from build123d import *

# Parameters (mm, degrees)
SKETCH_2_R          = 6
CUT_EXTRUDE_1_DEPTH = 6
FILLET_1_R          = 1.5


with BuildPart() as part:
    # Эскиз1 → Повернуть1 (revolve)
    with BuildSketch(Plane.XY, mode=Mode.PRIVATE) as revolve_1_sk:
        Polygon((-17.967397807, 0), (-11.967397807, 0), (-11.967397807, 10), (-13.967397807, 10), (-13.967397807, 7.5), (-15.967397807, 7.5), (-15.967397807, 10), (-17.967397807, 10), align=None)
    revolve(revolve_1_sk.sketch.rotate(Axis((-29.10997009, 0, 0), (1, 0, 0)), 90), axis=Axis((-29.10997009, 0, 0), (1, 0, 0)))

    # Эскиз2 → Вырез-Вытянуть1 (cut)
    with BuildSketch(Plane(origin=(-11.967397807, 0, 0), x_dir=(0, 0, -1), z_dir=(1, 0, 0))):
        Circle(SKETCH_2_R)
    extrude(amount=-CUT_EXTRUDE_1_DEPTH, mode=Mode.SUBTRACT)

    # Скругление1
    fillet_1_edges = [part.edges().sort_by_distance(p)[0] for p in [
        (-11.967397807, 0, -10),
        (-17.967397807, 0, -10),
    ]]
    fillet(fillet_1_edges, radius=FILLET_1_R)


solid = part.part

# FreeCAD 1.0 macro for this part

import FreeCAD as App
import Part
import Sketcher

V = App.Vector
Q = App.Units.Quantity


def edges_at(feature, points):
    """Names of the edges that pass closest to the given points."""
    edges = feature.Shape.Edges
    near = lambda p: min(range(len(edges)), key=lambda i: edges[i].distToShape(Part.Vertex(*p))[0])
    return sorted({f"Edge{near(p) + 1}" for p in points})

doc = App.newDocument("Part")
body = doc.addObject("PartDesign::Body", "Body")

# Sketch on XY plane
sketch1 = doc.addObject("Sketcher::SketchObject", "Sketch")
body.addObject(sketch1)
sketch1.AttachmentSupport = (doc.XY_Plane, [""])
sketch1.MapMode = "FlatFace"
sketch1.addGeometry([
    Part.LineSegment(V(-18, 0, 0), V(-12, 0, 0)),  # 0
    Part.LineSegment(V(-12, 0, 0), V(-12, 10, 0)),  # 1
    Part.LineSegment(V(-12, 10, 0), V(-14, 10, 0)),  # 2
    Part.LineSegment(V(-14, 10, 0), V(-14, 7.5, 0)),  # 3
    Part.LineSegment(V(-14, 7.5, 0), V(-16, 7.5, 0)),  # 4
    Part.LineSegment(V(-16, 7.5, 0), V(-16, 10, 0)),  # 5
    Part.LineSegment(V(-16, 10, 0), V(-18, 10, 0)),  # 6
    Part.LineSegment(V(-18, 10, 0), V(-18, 0, 0)),  # 7
], False)
sketch1.addConstraint([
    Sketcher.Constraint("Coincident", 0, 2, 1, 1),
    Sketcher.Constraint("Coincident", 1, 2, 2, 1),
    Sketcher.Constraint("Coincident", 2, 2, 3, 1),
    Sketcher.Constraint("Coincident", 3, 2, 4, 1),
    Sketcher.Constraint("Coincident", 4, 2, 5, 1),
    Sketcher.Constraint("Coincident", 5, 2, 6, 1),
    Sketcher.Constraint("Coincident", 6, 2, 7, 1),
    Sketcher.Constraint("Coincident", 7, 2, 0, 1),
    Sketcher.Constraint("Horizontal", 0),
    Sketcher.Constraint("Vertical", 1),
    Sketcher.Constraint("Horizontal", 2),
    Sketcher.Constraint("Vertical", 3),
    Sketcher.Constraint("Horizontal", 4),
    Sketcher.Constraint("Vertical", 5),
    Sketcher.Constraint("Horizontal", 6),
    Sketcher.Constraint("Vertical", 7),
    Sketcher.Constraint("PointOnObject", 0, 2, -1),
    Sketcher.Constraint("Horizontal", 2, 2, 5, 2),
    Sketcher.Constraint("Equal", 2, 4),
    Sketcher.Constraint("Equal", 4, 6),
    Sketcher.Constraint("DistanceX", 0, 1, 0, 2, Q("6 mm")),
    Sketcher.Constraint("DistanceY", 1, 1, 1, 2, Q("10 mm")),
    Sketcher.Constraint("DistanceY", 3, 2, 3, 1, Q("2.5 mm")),
    Sketcher.Constraint("DistanceX", 0, 2, -1, 1, Q("11.967398 mm")),
])
revolution = doc.addObject("PartDesign::Revolution", "Revolution")
body.addObject(revolution)
revolution.Profile = sketch1
revolution.ReferenceAxis = (sketch1, ["H_Axis"])
revolution.Angle = 360

# Sketch on YZ plane
sketch2 = doc.addObject("Sketcher::SketchObject", "Sketch001")
body.addObject(sketch2)
sketch2.AttachmentSupport = (doc.YZ_Plane, [""])
sketch2.MapMode = "FlatFace"
sketch2.AttachmentOffset = App.Placement(V(0, 0, -11.967398), App.Rotation())
sketch2.addGeometry(Part.Circle(V(0, 0, 0), V(0, 0, 1), 6), False)
sketch2.addConstraint([
    Sketcher.Constraint("Coincident", 0, 3, -1, 1),
    Sketcher.Constraint("Diameter", 0, Q("12 mm")),
])
pocket1 = doc.addObject("PartDesign::Pocket", "Pocket")
body.addObject(pocket1)
pocket1.Profile = sketch2
pocket1.Length = 6
doc.recompute()

fillet = doc.addObject("PartDesign::Fillet", "Fillet")
body.addObject(fillet)
fillet.Base = (pocket1, edges_at(pocket1, [(-11.967, 0, -10), (-17.967, 0, -10)]))
fillet.Radius = 1.5

doc.recompute()
